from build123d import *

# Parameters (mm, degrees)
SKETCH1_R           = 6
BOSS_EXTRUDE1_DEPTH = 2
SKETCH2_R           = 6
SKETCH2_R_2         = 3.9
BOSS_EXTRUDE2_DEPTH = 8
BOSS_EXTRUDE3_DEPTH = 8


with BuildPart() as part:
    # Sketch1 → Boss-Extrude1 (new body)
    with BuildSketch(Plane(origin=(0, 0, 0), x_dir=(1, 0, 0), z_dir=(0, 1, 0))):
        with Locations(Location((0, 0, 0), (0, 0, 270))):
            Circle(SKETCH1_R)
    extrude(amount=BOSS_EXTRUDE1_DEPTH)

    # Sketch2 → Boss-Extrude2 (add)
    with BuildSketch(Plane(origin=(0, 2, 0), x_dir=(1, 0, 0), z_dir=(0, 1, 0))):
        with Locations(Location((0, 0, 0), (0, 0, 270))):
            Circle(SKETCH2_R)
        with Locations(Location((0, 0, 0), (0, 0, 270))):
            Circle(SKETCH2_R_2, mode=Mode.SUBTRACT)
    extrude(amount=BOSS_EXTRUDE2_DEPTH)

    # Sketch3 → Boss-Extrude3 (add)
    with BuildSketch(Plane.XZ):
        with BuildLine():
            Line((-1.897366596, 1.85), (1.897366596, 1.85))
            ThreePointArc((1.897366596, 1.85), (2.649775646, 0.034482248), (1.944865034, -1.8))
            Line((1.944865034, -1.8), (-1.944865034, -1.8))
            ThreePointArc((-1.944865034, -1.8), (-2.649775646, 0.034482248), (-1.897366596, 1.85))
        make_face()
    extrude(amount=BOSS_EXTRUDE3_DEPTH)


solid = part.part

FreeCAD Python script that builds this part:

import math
import FreeCAD as App
import Part
import Sketcher
from FreeCAD import Vector

doc = App.newDocument("Part")
body = doc.addObject("PartDesign::Body", "Body")

sketch1 = body.newObject("Sketcher::SketchObject", "Sketch")
sketch1.AttachmentSupport = (doc.getObject("XZ_Plane"), [""])
sketch1.MapMode = "FlatFace"
sketch1.addGeometry(Part.Circle(Vector(0, 0, 0), Vector(0, 0, 1), 6), False)
sketch1.addConstraint(Sketcher.Constraint("Coincident", 0, 3, -1, 1))
sketch1.addConstraint(Sketcher.Constraint("Diameter", 0, 12.0))
pad1 = body.newObject("PartDesign::Pad", "Pad")
pad1.Profile = sketch1
pad1.Length = 2
pad1.Reversed = True

sketch2 = body.newObject("Sketcher::SketchObject", "Sketch001")
sketch2.AttachmentSupport = (doc.getObject("XZ_Plane"), [""])
sketch2.MapMode = "FlatFace"
sketch2.AttachmentOffset = App.Placement(Vector(0, 0, -2), App.Rotation())
sketch2.addGeometry(Part.Circle(Vector(0, 0, 0), Vector(0, 0, 1), 6), False)
sketch2.addGeometry(Part.Circle(Vector(0, 0, 0), Vector(0, 0, 1), 3.9), False)
sketch2.addConstraint(Sketcher.Constraint("Coincident", 0, 3, -1, 1))
sketch2.addConstraint(Sketcher.Constraint("Coincident", 1, 3, -1, 1))
sketch2.addConstraint(Sketcher.Constraint("Diameter", 0, 12.0))
sketch2.addConstraint(Sketcher.Constraint("Diameter", 1, 7.8))
pad2 = body.newObject("PartDesign::Pad", "Pad001")
pad2.Profile = sketch2
pad2.Length = 8
pad2.Reversed = True

sketch3 = body.newObject("Sketcher::SketchObject", "Sketch002")
sketch3.AttachmentSupport = (doc.getObject("XZ_Plane"), [""])
sketch3.MapMode = "FlatFace"
sketch3.addGeometry(Part.LineSegment(Vector(1.9, 1.9, 0), Vector(-1.9, 1.9, 0)), False)
sketch3.addGeometry(Part.ArcOfCircle(Part.Circle(Vector(0, 0, 0), Vector(0, 0, 1), 2.6), math.radians(136), math.radians(223)), False)
sketch3.addGeometry(Part.LineSegment(Vector(-1.9, -1.8, 0), Vector(1.9, -1.8, 0)), False)
sketch3.addGeometry(Part.ArcOfCircle(Part.Circle(Vector(0, 0, 0), Vector(0, 0, 1), 2.6), math.radians(-43), math.radians(44)), False)
sketch3.addConstraint(Sketcher.Constraint("Coincident", 0, 2, 1, 1))
sketch3.addConstraint(Sketcher.Constraint("Coincident", 1, 2, 2, 1))
sketch3.addConstraint(Sketcher.Constraint("Coincident", 2, 2, 3, 1))
sketch3.addConstraint(Sketcher.Constraint("Coincident", 3, 2, 0, 1))
sketch3.addConstraint(Sketcher.Constraint("Horizontal", 0))
sketch3.addConstraint(Sketcher.Constraint("Horizontal", 2))
sketch3.addConstraint(Sketcher.Constraint("Coincident", 1, 3, -1, 1))
sketch3.addConstraint(Sketcher.Constraint("Coincident", 3, 3, -1, 1))
sketch3.addConstraint(Sketcher.Constraint("Equal", 1, 3))
sketch3.addConstraint(Sketcher.Constraint("Radius", 1, 2.65))
sketch3.addConstraint(Sketcher.Constraint("DistanceY", 1, 2, -1, 1, 1.8))
sketch3.addConstraint(Sketcher.Constraint("DistanceY", -1, 1, 0, 2, 1.85))
pad3 = body.newObject("PartDesign::Pad", "Pad002")
pad3.Profile = sketch3
pad3.Length = 8

doc.recompute()
